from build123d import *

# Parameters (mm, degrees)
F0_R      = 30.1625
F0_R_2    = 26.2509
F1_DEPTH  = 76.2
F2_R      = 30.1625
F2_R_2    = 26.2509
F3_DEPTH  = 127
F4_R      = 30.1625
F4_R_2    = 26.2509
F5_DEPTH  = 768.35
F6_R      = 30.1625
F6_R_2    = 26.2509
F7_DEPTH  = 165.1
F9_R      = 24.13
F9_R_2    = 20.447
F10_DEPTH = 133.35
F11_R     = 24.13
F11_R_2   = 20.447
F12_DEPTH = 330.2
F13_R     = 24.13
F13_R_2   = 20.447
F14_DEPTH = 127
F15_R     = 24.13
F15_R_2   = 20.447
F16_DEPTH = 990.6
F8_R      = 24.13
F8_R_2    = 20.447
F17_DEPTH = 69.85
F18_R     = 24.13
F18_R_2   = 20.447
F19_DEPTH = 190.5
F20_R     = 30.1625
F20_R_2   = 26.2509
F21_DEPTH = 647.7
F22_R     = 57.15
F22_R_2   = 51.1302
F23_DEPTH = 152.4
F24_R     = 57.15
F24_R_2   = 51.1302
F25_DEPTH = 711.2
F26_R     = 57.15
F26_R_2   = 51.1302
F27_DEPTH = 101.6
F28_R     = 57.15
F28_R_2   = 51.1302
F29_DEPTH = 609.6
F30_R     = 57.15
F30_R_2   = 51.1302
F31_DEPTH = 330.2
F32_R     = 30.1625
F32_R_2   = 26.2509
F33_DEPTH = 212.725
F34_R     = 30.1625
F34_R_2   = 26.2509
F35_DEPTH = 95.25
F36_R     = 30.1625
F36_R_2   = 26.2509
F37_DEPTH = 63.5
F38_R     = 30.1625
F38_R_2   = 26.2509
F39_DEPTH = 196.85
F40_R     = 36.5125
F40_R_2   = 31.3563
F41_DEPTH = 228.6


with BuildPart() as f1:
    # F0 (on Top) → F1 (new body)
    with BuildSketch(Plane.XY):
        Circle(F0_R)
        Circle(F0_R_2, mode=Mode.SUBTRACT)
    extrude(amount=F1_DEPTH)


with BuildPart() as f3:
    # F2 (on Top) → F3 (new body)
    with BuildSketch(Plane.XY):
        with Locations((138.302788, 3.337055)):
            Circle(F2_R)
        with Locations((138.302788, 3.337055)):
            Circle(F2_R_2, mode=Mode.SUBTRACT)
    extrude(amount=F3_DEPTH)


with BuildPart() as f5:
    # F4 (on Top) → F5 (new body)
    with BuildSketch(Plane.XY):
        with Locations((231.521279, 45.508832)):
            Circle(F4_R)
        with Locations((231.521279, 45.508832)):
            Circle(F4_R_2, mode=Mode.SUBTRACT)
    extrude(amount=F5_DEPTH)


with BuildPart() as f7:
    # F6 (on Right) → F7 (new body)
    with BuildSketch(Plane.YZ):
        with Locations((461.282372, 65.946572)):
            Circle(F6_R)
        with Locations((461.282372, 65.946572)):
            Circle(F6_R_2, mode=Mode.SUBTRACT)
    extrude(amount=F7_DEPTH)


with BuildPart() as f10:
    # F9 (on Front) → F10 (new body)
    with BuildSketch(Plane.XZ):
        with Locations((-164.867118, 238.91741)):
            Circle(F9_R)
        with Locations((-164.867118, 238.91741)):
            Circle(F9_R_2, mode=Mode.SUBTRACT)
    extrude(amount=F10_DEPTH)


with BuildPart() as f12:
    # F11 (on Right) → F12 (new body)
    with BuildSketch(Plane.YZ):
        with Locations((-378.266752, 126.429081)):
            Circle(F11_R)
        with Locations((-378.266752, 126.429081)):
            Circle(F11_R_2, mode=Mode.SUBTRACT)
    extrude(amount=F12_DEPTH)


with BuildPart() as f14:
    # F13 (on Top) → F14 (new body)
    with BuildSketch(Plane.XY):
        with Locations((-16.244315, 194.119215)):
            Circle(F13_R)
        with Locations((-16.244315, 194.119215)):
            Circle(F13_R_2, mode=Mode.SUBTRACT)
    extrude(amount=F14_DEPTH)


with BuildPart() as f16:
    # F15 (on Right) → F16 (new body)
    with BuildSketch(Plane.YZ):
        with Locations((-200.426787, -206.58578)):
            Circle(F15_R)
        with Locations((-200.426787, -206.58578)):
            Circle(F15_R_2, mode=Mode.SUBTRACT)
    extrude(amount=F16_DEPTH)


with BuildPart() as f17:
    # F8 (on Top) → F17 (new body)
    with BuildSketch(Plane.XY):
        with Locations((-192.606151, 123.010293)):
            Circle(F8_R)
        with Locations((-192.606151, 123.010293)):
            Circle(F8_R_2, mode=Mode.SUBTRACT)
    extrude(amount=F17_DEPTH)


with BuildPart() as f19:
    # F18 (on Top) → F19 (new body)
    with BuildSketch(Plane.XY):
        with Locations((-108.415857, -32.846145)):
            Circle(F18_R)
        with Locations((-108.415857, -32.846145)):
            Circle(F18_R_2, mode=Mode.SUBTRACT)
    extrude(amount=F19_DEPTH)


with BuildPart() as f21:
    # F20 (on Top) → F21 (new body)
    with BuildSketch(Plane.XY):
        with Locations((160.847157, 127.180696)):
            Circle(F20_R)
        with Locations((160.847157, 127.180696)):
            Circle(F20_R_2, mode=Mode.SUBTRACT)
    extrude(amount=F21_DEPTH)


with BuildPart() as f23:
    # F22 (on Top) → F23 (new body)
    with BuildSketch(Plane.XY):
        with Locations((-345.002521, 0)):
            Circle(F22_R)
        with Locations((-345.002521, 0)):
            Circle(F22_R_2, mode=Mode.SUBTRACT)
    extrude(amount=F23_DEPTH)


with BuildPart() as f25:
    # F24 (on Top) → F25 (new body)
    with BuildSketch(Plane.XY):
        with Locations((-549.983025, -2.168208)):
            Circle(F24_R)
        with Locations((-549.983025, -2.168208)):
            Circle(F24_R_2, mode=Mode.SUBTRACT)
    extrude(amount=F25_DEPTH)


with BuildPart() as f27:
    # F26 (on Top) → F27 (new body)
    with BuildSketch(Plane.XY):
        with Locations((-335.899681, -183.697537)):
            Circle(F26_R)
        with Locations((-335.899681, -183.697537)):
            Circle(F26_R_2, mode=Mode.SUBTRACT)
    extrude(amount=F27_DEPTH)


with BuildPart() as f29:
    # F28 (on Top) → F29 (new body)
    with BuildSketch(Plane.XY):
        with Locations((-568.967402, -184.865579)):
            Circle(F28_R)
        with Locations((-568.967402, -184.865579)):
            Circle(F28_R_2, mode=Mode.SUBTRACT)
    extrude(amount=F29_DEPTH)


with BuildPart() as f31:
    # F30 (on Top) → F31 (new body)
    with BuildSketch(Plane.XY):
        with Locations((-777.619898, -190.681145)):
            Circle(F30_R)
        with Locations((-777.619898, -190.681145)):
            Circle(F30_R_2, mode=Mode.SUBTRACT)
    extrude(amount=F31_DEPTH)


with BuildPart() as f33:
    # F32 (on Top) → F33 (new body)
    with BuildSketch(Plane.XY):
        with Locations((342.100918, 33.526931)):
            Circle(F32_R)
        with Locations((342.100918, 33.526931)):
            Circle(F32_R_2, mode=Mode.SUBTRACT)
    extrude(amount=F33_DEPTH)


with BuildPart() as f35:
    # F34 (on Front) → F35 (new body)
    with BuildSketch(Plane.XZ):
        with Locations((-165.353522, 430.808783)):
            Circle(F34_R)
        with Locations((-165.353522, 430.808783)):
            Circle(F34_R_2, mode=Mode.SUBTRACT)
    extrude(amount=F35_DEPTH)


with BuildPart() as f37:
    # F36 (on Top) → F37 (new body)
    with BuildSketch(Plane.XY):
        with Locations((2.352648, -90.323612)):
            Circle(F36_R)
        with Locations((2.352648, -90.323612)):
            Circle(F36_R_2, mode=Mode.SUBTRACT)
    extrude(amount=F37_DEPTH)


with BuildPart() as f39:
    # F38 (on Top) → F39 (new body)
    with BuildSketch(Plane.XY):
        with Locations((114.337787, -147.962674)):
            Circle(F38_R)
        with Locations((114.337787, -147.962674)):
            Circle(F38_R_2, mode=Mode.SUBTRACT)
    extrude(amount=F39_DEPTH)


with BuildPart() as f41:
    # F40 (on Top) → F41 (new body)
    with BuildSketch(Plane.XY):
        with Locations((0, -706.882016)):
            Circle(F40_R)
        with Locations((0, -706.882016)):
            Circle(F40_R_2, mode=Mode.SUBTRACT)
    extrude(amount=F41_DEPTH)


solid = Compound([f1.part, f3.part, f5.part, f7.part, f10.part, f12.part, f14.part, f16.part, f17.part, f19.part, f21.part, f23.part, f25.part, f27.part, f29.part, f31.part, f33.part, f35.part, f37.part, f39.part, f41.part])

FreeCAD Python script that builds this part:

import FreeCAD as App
import Part
import Sketcher

V = App.Vector
Q = App.Units.Quantity

doc = App.newDocument("Part")
body = doc.addObject("PartDesign::Body", "Body")

# Sketch on XY plane
sketch1 = body.newObject("Sketcher::SketchObject", "Sketch")
sketch1.AttachmentSupport = (doc.getObject("XY_Plane"), [""])
sketch1.MapMode = "FlatFace"
sketch1.addGeometry(Part.Circle(V(0, 0, 0), V(0, 0, 1), 30), False)
sketch1.addGeometry(Part.Circle(V(0, 0, 0), V(0, 0, 1), 26), False)
sketch1.addConstraint(Sketcher.Constraint("Coincident", 0, 3, -1, 1))
sketch1.addConstraint(Sketcher.Constraint("Coincident", 1, 3, -1, 1))
sketch1.addConstraint(Sketcher.Constraint("Diameter", 0, Q("2.375 in")))
sketch1.addConstraint(Sketcher.Constraint("Diameter", 1, Q("2.067 in")))
pad1 = body.newObject("PartDesign::Pad", "Pad")
pad1.Profile = sketch1
pad1.Length = Q("3 in")
body2 = doc.addObject("PartDesign::Body", "Body001")

# Sketch on XY plane
sketch2 = body2.newObject("Sketcher::SketchObject", "Sketch001")
sketch2.AttachmentSupport = (doc.getObject("XY_Plane001"), [""])
sketch2.MapMode = "FlatFace"
sketch2.addGeometry(Part.Circle(V(138, 3, 0), V(0, 0, 1), 30), False)
sketch2.addGeometry(Part.Circle(V(138, 3, 0), V(0, 0, 1), 26), False)
sketch2.addConstraint(Sketcher.Constraint("Coincident", 1, 3, 0, 3))
sketch2.addConstraint(Sketcher.Constraint("Diameter", 0, Q("2.375 in")))
sketch2.addConstraint(Sketcher.Constraint("Diameter", 1, Q("2.067 in")))
sketch2.addConstraint(Sketcher.Constraint("DistanceX", -1, 1, 0, 3, 138.302788))
sketch2.addConstraint(Sketcher.Constraint("DistanceY", -1, 1, 0, 3, 3.337055))
pad2 = body2.newObject("PartDesign::Pad", "Pad001")
pad2.Profile = sketch2
pad2.Length = Q("5 in")
body3 = doc.addObject("PartDesign::Body", "Body002")

# Sketch on XY plane
sketch3 = body3.newObject("Sketcher::SketchObject", "Sketch002")
sketch3.AttachmentSupport = (doc.getObject("XY_Plane002"), [""])
sketch3.MapMode = "FlatFace"
sketch3.addGeometry(Part.Circle(V(232, 46, 0), V(0, 0, 1), 30), False)
sketch3.addGeometry(Part.Circle(V(232, 46, 0), V(0, 0, 1), 26), False)
sketch3.addConstraint(Sketcher.Constraint("Coincident", 1, 3, 0, 3))
sketch3.addConstraint(Sketcher.Constraint("Diameter", 0, Q("2.375 in")))
sketch3.addConstraint(Sketcher.Constraint("Diameter", 1, Q("2.067 in")))
sketch3.addConstraint(Sketcher.Constraint("DistanceX", -1, 1, 0, 3, 231.521279))
sketch3.addConstraint(Sketcher.Constraint("DistanceY", -1, 1, 0, 3, 45.508832))
pad3 = body3.newObject("PartDesign::Pad", "Pad002")
pad3.Profile = sketch3
pad3.Length = Q("30.25 in")
body4 = doc.addObject("PartDesign::Body", "Body003")

# Sketch on YZ plane
sketch4 = body4.newObject("Sketcher::SketchObject", "Sketch003")
sketch4.AttachmentSupport = (doc.getObject("YZ_Plane003"), [""])
sketch4.MapMode = "FlatFace"
sketch4.addGeometry(Part.Circle(V(461, 66, 0), V(0, 0, 1), 30), False)
sketch4.addGeometry(Part.Circle(V(461, 66, 0), V(0, 0, 1), 26), False)
sketch4.addConstraint(Sketcher.Constraint("Coincident", 1, 3, 0, 3))
sketch4.addConstraint(Sketcher.Constraint("Diameter", 0, Q("2.375 in")))
sketch4.addConstraint(Sketcher.Constraint("Diameter", 1, Q("2.067 in")))
sketch4.addConstraint(Sketcher.Constraint("DistanceX", -1, 1, 0, 3, 461.282372))
sketch4.addConstraint(Sketcher.Constraint("DistanceY", -1, 1, 0, 3, 65.946572))
pad4 = body4.newObject("PartDesign::Pad", "Pad003")
pad4.Profile = sketch4
pad4.Length = Q("6.5 in")
body5 = doc.addObject("PartDesign::Body", "Body004")

# Sketch on XZ plane
sketch5 = body5.newObject("Sketcher::SketchObject", "Sketch004")
sketch5.AttachmentSupport = (doc.getObject("XZ_Plane004"), [""])
sketch5.MapMode = "FlatFace"
sketch5.addGeometry(Part.Circle(V(-165, 239, 0), V(0, 0, 1), 24), False)
sketch5.addGeometry(Part.Circle(V(-165, 239, 0), V(0, 0, 1), 20), False)
sketch5.addConstraint(Sketcher.Constraint("Coincident", 1, 3, 0, 3))
sketch5.addConstraint(Sketcher.Constraint("Diameter", 0, Q("1.9 in")))
sketch5.addConstraint(Sketcher.Constraint("Diameter", 1, Q("1.61 in")))
sketch5.addConstraint(Sketcher.Constraint("DistanceX", 0, 3, -1, 1, 164.867118))
sketch5.addConstraint(Sketcher.Constraint("DistanceY", -1, 1, 0, 3, 238.91741))
pad5 = body5.newObject("PartDesign::Pad", "Pad004")
pad5.Profile = sketch5
pad5.Length = Q("5.25 in")
body6 = doc.addObject("PartDesign::Body", "Body005")

# Sketch on YZ plane
sketch6 = body6.newObject("Sketcher::SketchObject", "Sketch005")
sketch6.AttachmentSupport = (doc.getObject("YZ_Plane005"), [""])
sketch6.MapMode = "FlatFace"
sketch6.addGeometry(Part.Circle(V(-378, 126, 0), V(0, 0, 1), 24), False)
sketch6.addGeometry(Part.Circle(V(-378, 126, 0), V(0, 0, 1), 20), False)
sketch6.addConstraint(Sketcher.Constraint("Coincident", 1, 3, 0, 3))
sketch6.addConstraint(Sketcher.Constraint("Diameter", 0, Q("1.9 in")))
sketch6.addConstraint(Sketcher.Constraint("Diameter", 1, Q("1.61 in")))
sketch6.addConstraint(Sketcher.Constraint("DistanceX", 0, 3, -1, 1, 378.266752))
sketch6.addConstraint(Sketcher.Constraint("DistanceY", -1, 1, 0, 3, 126.429081))
pad6 = body6.newObject("PartDesign::Pad", "Pad005")
pad6.Profile = sketch6
pad6.Length = Q("13 in")
body7 = doc.addObject("PartDesign::Body", "Body006")

# Sketch on XY plane
sketch7 = body7.newObject("Sketcher::SketchObject", "Sketch006")
sketch7.AttachmentSupport = (doc.getObject("XY_Plane006"), [""])
sketch7.MapMode = "FlatFace"
sketch7.addGeometry(Part.Circle(V(-16, 194, 0), V(0, 0, 1), 24), False)
sketch7.addGeometry(Part.Circle(V(-16, 194, 0), V(0, 0, 1), 20), False)
sketch7.addConstraint(Sketcher.Constraint("Coincident", 1, 3, 0, 3))
sketch7.addConstraint(Sketcher.Constraint("Diameter", 0, Q("1.9 in")))
sketch7.addConstraint(Sketcher.Constraint("Diameter", 1, Q("1.61 in")))
sketch7.addConstraint(Sketcher.Constraint("DistanceX", 0, 3, -1, 1, 16.244315))
sketch7.addConstraint(Sketcher.Constraint("DistanceY", -1, 1, 0, 3, 194.119215))
pad7 = body7.newObject("PartDesign::Pad", "Pad006")
pad7.Profile = sketch7
pad7.Length = Q("5 in")
body8 = doc.addObject("PartDesign::Body", "Body007")

# Sketch on YZ plane
sketch8 = body8.newObject("Sketcher::SketchObject", "Sketch007")
sketch8.AttachmentSupport = (doc.getObject("YZ_Plane007"), [""])
sketch8.MapMode = "FlatFace"
sketch8.addGeometry(Part.Circle(V(-200, -207, 0), V(0, 0, 1), 24), False)
sketch8.addGeometry(Part.Circle(V(-200, -207, 0), V(0, 0, 1), 20), False)
sketch8.addConstraint(Sketcher.Constraint("Coincident", 1, 3, 0, 3))
sketch8.addConstraint(Sketcher.Constraint("Diameter", 0, Q("1.9 in")))
sketch8.addConstraint(Sketcher.Constraint("Diameter", 1, Q("1.61 in")))
sketch8.addConstraint(Sketcher.Constraint("DistanceY", 0, 3, -1, 1, 206.58578))
sketch8.addConstraint(Sketcher.Constraint("DistanceX", 0, 3, -1, 1, 200.426787))
pad8 = body8.newObject("PartDesign::Pad", "Pad007")
pad8.Profile = sketch8
pad8.Length = Q("39 in")
body9 = doc.addObject("PartDesign::Body", "Body008")

# Sketch on XY plane
sketch9 = body9.newObject("Sketcher::SketchObject", "Sketch008")
sketch9.AttachmentSupport = (doc.getObject("XY_Plane008"), [""])
sketch9.MapMode = "FlatFace"
sketch9.addGeometry(Part.Circle(V(-193, 123, 0), V(0, 0, 1), 24), False)
sketch9.addGeometry(Part.Circle(V(-193, 123, 0), V(0, 0, 1), 20), False)
sketch9.addConstraint(Sketcher.Constraint("Coincident", 1, 3, 0, 3))
sketch9.addConstraint(Sketcher.Constraint("Diameter", 0, Q("1.9 in")))
sketch9.addConstraint(Sketcher.Constraint("Diameter", 1, Q("1.61 in")))
sketch9.addConstraint(Sketcher.Constraint("DistanceX", 0, 3, -1, 1, 192.606151))
sketch9.addConstraint(Sketcher.Constraint("DistanceY", -1, 1, 0, 3, 123.010293))
pad9 = body9.newObject("PartDesign::Pad", "Pad008")
pad9.Profile = sketch9
pad9.Length = Q("2.75 in")
body10 = doc.addObject("PartDesign::Body", "Body009")

# Sketch on XY plane
sketch10 = body10.newObject("Sketcher::SketchObject", "Sketch009")
sketch10.AttachmentSupport = (doc.getObject("XY_Plane009"), [""])
sketch10.MapMode = "FlatFace"
sketch10.addGeometry(Part.Circle(V(-108, -33, 0), V(0, 0, 1), 24), False)
sketch10.addGeometry(Part.Circle(V(-108, -33, 0), V(0, 0, 1), 20), False)
sketch10.addConstraint(Sketcher.Constraint("Coincident", 1, 3, 0, 3))
sketch10.addConstraint(Sketcher.Constraint("Diameter", 0, Q("1.9 in")))
sketch10.addConstraint(Sketcher.Constraint("Diameter", 1, Q("1.61 in")))
sketch10.addConstraint(Sketcher.Constraint("DistanceX", 0, 3, -1, 1, 108.415857))
sketch10.addConstraint(Sketcher.Constraint("DistanceY", 0, 3, -1, 1, 32.846145))
pad10 = body10.newObject("PartDesign::Pad", "Pad009")
pad10.Profile = sketch10
pad10.Length = Q("7.5 in")
body11 = doc.addObject("PartDesign::Body", "Body010")

# Sketch on XY plane
sketch11 = body11.newObject("Sketcher::SketchObject", "Sketch010")
sketch11.AttachmentSupport = (doc.getObject("XY_Plane010"), [""])
sketch11.MapMode = "FlatFace"
sketch11.addGeometry(Part.Circle(V(161, 127, 0), V(0, 0, 1), 30), False)
sketch11.addGeometry(Part.Circle(V(161, 127, 0), V(0, 0, 1), 26), False)
sketch11.addConstraint(Sketcher.Constraint("Coincident", 1, 3, 0, 3))
sketch11.addConstraint(Sketcher.Constraint("Diameter", 0, Q("2.375 in")))
sketch11.addConstraint(Sketcher.Constraint("Diameter", 1, Q("2.067 in")))
sketch11.addConstraint(Sketcher.Constraint("DistanceX", -1, 1, 0, 3, 160.847157))
sketch11.addConstraint(Sketcher.Constraint("DistanceY", -1, 1, 0, 3, 127.180696))
pad11 = body11.newObject("PartDesign::Pad", "Pad010")
pad11.Profile = sketch11
pad11.Length = Q("25.5 in")
body12 = doc.addObject("PartDesign::Body", "Body011")

# Sketch on XY plane
sketch12 = body12.newObject("Sketcher::SketchObject", "Sketch011")
sketch12.AttachmentSupport = (doc.getObject("XY_Plane011"), [""])
sketch12.MapMode = "FlatFace"
sketch12.addGeometry(Part.Circle(V(-345, 0, 0), V(0, 0, 1), 57), False)
sketch12.addGeometry(Part.Circle(V(-345, 0, 0), V(0, 0, 1), 51), False)
sketch12.addConstraint(Sketcher.Constraint("Coincident", 1, 3, 0, 3))
sketch12.addConstraint(Sketcher.Constraint("PointOnObject", 0, 3, -1))
sketch12.addConstraint(Sketcher.Constraint("Diameter", 0, Q("4.5 in")))
sketch12.addConstraint(Sketcher.Constraint("Diameter", 1, Q("4.026 in")))
sketch12.addConstraint(Sketcher.Constraint("DistanceX", 0, 3, -1, 1, 345.002521))
pad12 = body12.newObject("PartDesign::Pad", "Pad011")
pad12.Profile = sketch12
pad12.Length = Q("6 in")
body13 = doc.addObject("PartDesign::Body", "Body012")

# Sketch on XY plane
sketch13 = body13.newObject("Sketcher::SketchObject", "Sketch012")
sketch13.AttachmentSupport = (doc.getObject("XY_Plane012"), [""])
sketch13.MapMode = "FlatFace"
sketch13.addGeometry(Part.Circle(V(-550, -2, 0), V(0, 0, 1), 57), False)
sketch13.addGeometry(Part.Circle(V(-550, -2, 0), V(0, 0, 1), 51), False)
sketch13.addConstraint(Sketcher.Constraint("Coincident", 1, 3, 0, 3))
sketch13.addConstraint(Sketcher.Constraint("Diameter", 0, Q("4.5 in")))
sketch13.addConstraint(Sketcher.Constraint("Diameter", 1, Q("4.026 in")))
sketch13.addConstraint(Sketcher.Constraint("DistanceX", 0, 3, -1, 1, 549.983025))
sketch13.addConstraint(Sketcher.Constraint("DistanceY", 0, 3, -1, 1, 2.168208))
pad13 = body13.newObject("PartDesign::Pad", "Pad012")
pad13.Profile = sketch13
pad13.Length = Q("28 in")
body14 = doc.addObject("PartDesign::Body", "Body013")

# Sketch on XY plane
sketch14 = body14.newObject("Sketcher::SketchObject", "Sketch013")
sketch14.AttachmentSupport = (doc.getObject("XY_Plane013"), [""])
sketch14.MapMode = "FlatFace"
sketch14.addGeometry(Part.Circle(V(-336, -184, 0), V(0, 0, 1), 57), False)
sketch14.addGeometry(Part.Circle(V(-336, -184, 0), V(0, 0, 1), 51), False)
sketch14.addConstraint(Sketcher.Constraint("Coincident", 1, 3, 0, 3))
sketch14.addConstraint(Sketcher.Constraint("Diameter", 0, Q("4.5 in")))
sketch14.addConstraint(Sketcher.Constraint("Diameter", 1, Q("4.026 in")))
sketch14.addConstraint(Sketcher.Constraint("DistanceX", 0, 3, -1, 1, 335.899681))
sketch14.addConstraint(Sketcher.Constraint("DistanceY", 0, 3, -1, 1, 183.697537))
pad14 = body14.newObject("PartDesign::Pad", "Pad013")
pad14.Profile = sketch14
pad14.Length = Q("4 in")
body15 = doc.addObject("PartDesign::Body", "Body014")

# Sketch on XY plane
sketch15 = body15.newObject("Sketcher::SketchObject", "Sketch014")
sketch15.AttachmentSupport = (doc.getObject("XY_Plane014"), [""])
sketch15.MapMode = "FlatFace"
sketch15.addGeometry(Part.Circle(V(-569, -185, 0), V(0, 0, 1), 57), False)
sketch15.addGeometry(Part.Circle(V(-569, -185, 0), V(0, 0, 1), 51), False)
sketch15.addConstraint(Sketcher.Constraint("Coincident", 1, 3, 0, 3))
sketch15.addConstraint(Sketcher.Constraint("Diameter", 0, Q("4.5 in")))
sketch15.addConstraint(Sketcher.Constraint("Diameter", 1, Q("4.026 in")))
sketch15.addConstraint(Sketcher.Constraint("DistanceX", 0, 3, -1, 1, 568.967402))
sketch15.addConstraint(Sketcher.Constraint("DistanceY", 0, 3, -1, 1, 184.865579))
pad15 = body15.newObject("PartDesign::Pad", "Pad014")
pad15.Profile = sketch15
pad15.Length = Q("24 in")
body16 = doc.addObject("PartDesign::Body", "Body015")

# Sketch on XY plane
sketch16 = body16.newObject("Sketcher::SketchObject", "Sketch015")
sketch16.AttachmentSupport = (doc.getObject("XY_Plane015"), [""])
sketch16.MapMode = "FlatFace"
sketch16.addGeometry(Part.Circle(V(-778, -191, 0), V(0, 0, 1), 57), False)
sketch16.addGeometry(Part.Circle(V(-778, -191, 0), V(0, 0, 1), 51), False)
sketch16.addConstraint(Sketcher.Constraint("Coincident", 1, 3, 0, 3))
sketch16.addConstraint(Sketcher.Constraint("Diameter", 0, Q("4.5 in")))
sketch16.addConstraint(Sketcher.Constraint("Diameter", 1, Q("4.026 in")))
sketch16.addConstraint(Sketcher.Constraint("DistanceX", 0, 3, -1, 1, 777.619898))
sketch16.addConstraint(Sketcher.Constraint("DistanceY", 0, 3, -1, 1, 190.681145))
pad16 = body16.newObject("PartDesign::Pad", "Pad015")
pad16.Profile = sketch16
pad16.Length = Q("13 in")
body17 = doc.addObject("PartDesign::Body", "Body016")

# Sketch on XY plane
sketch17 = body17.newObject("Sketcher::SketchObject", "Sketch016")
sketch17.AttachmentSupport = (doc.getObject("XY_Plane016"), [""])
sketch17.MapMode = "FlatFace"
sketch17.addGeometry(Part.Circle(V(342, 34, 0), V(0, 0, 1), 30), False)
sketch17.addGeometry(Part.Circle(V(342, 34, 0), V(0, 0, 1), 26), False)
sketch17.addConstraint(Sketcher.Constraint("Coincident", 1, 3, 0, 3))
sketch17.addConstraint(Sketcher.Constraint("Diameter", 0, Q("2.375 in")))
sketch17.addConstraint(Sketcher.Constraint("Diameter", 1, Q("2.067 in")))
sketch17.addConstraint(Sketcher.Constraint("DistanceX", -1, 1, 0, 3, 342.100918))
sketch17.addConstraint(Sketcher.Constraint("DistanceY", -1, 1, 0, 3, 33.526931))
pad17 = body17.newObject("PartDesign::Pad", "Pad016")
pad17.Profile = sketch17
pad17.Length = Q("8.375 in")
body18 = doc.addObject("PartDesign::Body", "Body017")

# Sketch on XZ plane
sketch18 = body18.newObject("Sketcher::SketchObject", "Sketch017")
sketch18.AttachmentSupport = (doc.getObject("XZ_Plane017"), [""])
sketch18.MapMode = "FlatFace"
sketch18.addGeometry(Part.Circle(V(-165, 431, 0), V(0, 0, 1), 30), False)
sketch18.addGeometry(Part.Circle(V(-165, 431, 0), V(0, 0, 1), 26), False)
sketch18.addConstraint(Sketcher.Constraint("Coincident", 1, 3, 0, 3))
sketch18.addConstraint(Sketcher.Constraint("Diameter", 0, Q("2.375 in")))
sketch18.addConstraint(Sketcher.Constraint("Diameter", 1, Q("2.067 in")))
sketch18.addConstraint(Sketcher.Constraint("DistanceX", 0, 3, -1, 1, 165.353522))
sketch18.addConstraint(Sketcher.Constraint("DistanceY", -1, 1, 0, 3, 430.808783))
pad18 = body18.newObject("PartDesign::Pad", "Pad017")
pad18.Profile = sketch18
pad18.Length = Q("3.75 in")
body19 = doc.addObject("PartDesign::Body", "Body018")

# Sketch on XY plane
sketch19 = body19.newObject("Sketcher::SketchObject", "Sketch018")
sketch19.AttachmentSupport = (doc.getObject("XY_Plane018"), [""])
sketch19.MapMode = "FlatFace"
sketch19.addGeometry(Part.Circle(V(2, -90, 0), V(0, 0, 1), 30), False)
sketch19.addGeometry(Part.Circle(V(2, -90, 0), V(0, 0, 1), 26), False)
sketch19.addConstraint(Sketcher.Constraint("Coincident", 1, 3, 0, 3))
sketch19.addConstraint(Sketcher.Constraint("Diameter", 0, Q("2.375 in")))
sketch19.addConstraint(Sketcher.Constraint("Diameter", 1, Q("2.067 in")))
sketch19.addConstraint(Sketcher.Constraint("DistanceY", 0, 3, -1, 1, 90.323612))
sketch19.addConstraint(Sketcher.Constraint("DistanceX", -1, 1, 0, 3, 2.352648))
pad19 = body19.newObject("PartDesign::Pad", "Pad018")
pad19.Profile = sketch19
pad19.Length = Q("2.5 in")
body20 = doc.addObject("PartDesign::Body", "Body019")

# Sketch on XY plane
sketch20 = body20.newObject("Sketcher::SketchObject", "Sketch019")
sketch20.AttachmentSupport = (doc.getObject("XY_Plane019"), [""])
sketch20.MapMode = "FlatFace"
sketch20.addGeometry(Part.Circle(V(114, -148, 0), V(0, 0, 1), 30), False)
sketch20.addGeometry(Part.Circle(V(114, -148, 0), V(0, 0, 1), 26), False)
sketch20.addConstraint(Sketcher.Constraint("Coincident", 1, 3, 0, 3))
sketch20.addConstraint(Sketcher.Constraint("Diameter", 0, Q("2.375 in")))
sketch20.addConstraint(Sketcher.Constraint("Diameter", 1, Q("2.067 in")))
sketch20.addConstraint(Sketcher.Constraint("DistanceX", -1, 1, 0, 3, 114.337787))
sketch20.addConstraint(Sketcher.Constraint("DistanceY", 0, 3, -1, 1, 147.962674))
pad20 = body20.newObject("PartDesign::Pad", "Pad019")
pad20.Profile = sketch20
pad20.Length = Q("7.75 in")
body21 = doc.addObject("PartDesign::Body", "Body020")

# Sketch on XY plane
sketch21 = body21.newObject("Sketcher::SketchObject", "Sketch020")
sketch21.AttachmentSupport = (doc.getObject("XY_Plane020"), [""])
sketch21.MapMode = "FlatFace"
sketch21.addGeometry(Part.Circle(V(0, -707, 0), V(0, 0, 1), 37), False)
sketch21.addGeometry(Part.Circle(V(0, -707, 0), V(0, 0, 1), 31), False)
sketch21.addConstraint(Sketcher.Constraint("Coincident", 1, 3, 0, 3))
sketch21.addConstraint(Sketcher.Constraint("PointOnObject", 0, 3, -2))
sketch21.addConstraint(Sketcher.Constraint("Diameter", 0, Q("2.875 in")))
sketch21.addConstraint(Sketcher.Constraint("Diameter", 1, Q("2.469 in")))
sketch21.addConstraint(Sketcher.Constraint("DistanceY", 0, 3, -1, 1, 706.882016))
pad21 = body21.newObject("PartDesign::Pad", "Pad020")
pad21.Profile = sketch21
pad21.Length = Q("9 in")

doc.recompute()
